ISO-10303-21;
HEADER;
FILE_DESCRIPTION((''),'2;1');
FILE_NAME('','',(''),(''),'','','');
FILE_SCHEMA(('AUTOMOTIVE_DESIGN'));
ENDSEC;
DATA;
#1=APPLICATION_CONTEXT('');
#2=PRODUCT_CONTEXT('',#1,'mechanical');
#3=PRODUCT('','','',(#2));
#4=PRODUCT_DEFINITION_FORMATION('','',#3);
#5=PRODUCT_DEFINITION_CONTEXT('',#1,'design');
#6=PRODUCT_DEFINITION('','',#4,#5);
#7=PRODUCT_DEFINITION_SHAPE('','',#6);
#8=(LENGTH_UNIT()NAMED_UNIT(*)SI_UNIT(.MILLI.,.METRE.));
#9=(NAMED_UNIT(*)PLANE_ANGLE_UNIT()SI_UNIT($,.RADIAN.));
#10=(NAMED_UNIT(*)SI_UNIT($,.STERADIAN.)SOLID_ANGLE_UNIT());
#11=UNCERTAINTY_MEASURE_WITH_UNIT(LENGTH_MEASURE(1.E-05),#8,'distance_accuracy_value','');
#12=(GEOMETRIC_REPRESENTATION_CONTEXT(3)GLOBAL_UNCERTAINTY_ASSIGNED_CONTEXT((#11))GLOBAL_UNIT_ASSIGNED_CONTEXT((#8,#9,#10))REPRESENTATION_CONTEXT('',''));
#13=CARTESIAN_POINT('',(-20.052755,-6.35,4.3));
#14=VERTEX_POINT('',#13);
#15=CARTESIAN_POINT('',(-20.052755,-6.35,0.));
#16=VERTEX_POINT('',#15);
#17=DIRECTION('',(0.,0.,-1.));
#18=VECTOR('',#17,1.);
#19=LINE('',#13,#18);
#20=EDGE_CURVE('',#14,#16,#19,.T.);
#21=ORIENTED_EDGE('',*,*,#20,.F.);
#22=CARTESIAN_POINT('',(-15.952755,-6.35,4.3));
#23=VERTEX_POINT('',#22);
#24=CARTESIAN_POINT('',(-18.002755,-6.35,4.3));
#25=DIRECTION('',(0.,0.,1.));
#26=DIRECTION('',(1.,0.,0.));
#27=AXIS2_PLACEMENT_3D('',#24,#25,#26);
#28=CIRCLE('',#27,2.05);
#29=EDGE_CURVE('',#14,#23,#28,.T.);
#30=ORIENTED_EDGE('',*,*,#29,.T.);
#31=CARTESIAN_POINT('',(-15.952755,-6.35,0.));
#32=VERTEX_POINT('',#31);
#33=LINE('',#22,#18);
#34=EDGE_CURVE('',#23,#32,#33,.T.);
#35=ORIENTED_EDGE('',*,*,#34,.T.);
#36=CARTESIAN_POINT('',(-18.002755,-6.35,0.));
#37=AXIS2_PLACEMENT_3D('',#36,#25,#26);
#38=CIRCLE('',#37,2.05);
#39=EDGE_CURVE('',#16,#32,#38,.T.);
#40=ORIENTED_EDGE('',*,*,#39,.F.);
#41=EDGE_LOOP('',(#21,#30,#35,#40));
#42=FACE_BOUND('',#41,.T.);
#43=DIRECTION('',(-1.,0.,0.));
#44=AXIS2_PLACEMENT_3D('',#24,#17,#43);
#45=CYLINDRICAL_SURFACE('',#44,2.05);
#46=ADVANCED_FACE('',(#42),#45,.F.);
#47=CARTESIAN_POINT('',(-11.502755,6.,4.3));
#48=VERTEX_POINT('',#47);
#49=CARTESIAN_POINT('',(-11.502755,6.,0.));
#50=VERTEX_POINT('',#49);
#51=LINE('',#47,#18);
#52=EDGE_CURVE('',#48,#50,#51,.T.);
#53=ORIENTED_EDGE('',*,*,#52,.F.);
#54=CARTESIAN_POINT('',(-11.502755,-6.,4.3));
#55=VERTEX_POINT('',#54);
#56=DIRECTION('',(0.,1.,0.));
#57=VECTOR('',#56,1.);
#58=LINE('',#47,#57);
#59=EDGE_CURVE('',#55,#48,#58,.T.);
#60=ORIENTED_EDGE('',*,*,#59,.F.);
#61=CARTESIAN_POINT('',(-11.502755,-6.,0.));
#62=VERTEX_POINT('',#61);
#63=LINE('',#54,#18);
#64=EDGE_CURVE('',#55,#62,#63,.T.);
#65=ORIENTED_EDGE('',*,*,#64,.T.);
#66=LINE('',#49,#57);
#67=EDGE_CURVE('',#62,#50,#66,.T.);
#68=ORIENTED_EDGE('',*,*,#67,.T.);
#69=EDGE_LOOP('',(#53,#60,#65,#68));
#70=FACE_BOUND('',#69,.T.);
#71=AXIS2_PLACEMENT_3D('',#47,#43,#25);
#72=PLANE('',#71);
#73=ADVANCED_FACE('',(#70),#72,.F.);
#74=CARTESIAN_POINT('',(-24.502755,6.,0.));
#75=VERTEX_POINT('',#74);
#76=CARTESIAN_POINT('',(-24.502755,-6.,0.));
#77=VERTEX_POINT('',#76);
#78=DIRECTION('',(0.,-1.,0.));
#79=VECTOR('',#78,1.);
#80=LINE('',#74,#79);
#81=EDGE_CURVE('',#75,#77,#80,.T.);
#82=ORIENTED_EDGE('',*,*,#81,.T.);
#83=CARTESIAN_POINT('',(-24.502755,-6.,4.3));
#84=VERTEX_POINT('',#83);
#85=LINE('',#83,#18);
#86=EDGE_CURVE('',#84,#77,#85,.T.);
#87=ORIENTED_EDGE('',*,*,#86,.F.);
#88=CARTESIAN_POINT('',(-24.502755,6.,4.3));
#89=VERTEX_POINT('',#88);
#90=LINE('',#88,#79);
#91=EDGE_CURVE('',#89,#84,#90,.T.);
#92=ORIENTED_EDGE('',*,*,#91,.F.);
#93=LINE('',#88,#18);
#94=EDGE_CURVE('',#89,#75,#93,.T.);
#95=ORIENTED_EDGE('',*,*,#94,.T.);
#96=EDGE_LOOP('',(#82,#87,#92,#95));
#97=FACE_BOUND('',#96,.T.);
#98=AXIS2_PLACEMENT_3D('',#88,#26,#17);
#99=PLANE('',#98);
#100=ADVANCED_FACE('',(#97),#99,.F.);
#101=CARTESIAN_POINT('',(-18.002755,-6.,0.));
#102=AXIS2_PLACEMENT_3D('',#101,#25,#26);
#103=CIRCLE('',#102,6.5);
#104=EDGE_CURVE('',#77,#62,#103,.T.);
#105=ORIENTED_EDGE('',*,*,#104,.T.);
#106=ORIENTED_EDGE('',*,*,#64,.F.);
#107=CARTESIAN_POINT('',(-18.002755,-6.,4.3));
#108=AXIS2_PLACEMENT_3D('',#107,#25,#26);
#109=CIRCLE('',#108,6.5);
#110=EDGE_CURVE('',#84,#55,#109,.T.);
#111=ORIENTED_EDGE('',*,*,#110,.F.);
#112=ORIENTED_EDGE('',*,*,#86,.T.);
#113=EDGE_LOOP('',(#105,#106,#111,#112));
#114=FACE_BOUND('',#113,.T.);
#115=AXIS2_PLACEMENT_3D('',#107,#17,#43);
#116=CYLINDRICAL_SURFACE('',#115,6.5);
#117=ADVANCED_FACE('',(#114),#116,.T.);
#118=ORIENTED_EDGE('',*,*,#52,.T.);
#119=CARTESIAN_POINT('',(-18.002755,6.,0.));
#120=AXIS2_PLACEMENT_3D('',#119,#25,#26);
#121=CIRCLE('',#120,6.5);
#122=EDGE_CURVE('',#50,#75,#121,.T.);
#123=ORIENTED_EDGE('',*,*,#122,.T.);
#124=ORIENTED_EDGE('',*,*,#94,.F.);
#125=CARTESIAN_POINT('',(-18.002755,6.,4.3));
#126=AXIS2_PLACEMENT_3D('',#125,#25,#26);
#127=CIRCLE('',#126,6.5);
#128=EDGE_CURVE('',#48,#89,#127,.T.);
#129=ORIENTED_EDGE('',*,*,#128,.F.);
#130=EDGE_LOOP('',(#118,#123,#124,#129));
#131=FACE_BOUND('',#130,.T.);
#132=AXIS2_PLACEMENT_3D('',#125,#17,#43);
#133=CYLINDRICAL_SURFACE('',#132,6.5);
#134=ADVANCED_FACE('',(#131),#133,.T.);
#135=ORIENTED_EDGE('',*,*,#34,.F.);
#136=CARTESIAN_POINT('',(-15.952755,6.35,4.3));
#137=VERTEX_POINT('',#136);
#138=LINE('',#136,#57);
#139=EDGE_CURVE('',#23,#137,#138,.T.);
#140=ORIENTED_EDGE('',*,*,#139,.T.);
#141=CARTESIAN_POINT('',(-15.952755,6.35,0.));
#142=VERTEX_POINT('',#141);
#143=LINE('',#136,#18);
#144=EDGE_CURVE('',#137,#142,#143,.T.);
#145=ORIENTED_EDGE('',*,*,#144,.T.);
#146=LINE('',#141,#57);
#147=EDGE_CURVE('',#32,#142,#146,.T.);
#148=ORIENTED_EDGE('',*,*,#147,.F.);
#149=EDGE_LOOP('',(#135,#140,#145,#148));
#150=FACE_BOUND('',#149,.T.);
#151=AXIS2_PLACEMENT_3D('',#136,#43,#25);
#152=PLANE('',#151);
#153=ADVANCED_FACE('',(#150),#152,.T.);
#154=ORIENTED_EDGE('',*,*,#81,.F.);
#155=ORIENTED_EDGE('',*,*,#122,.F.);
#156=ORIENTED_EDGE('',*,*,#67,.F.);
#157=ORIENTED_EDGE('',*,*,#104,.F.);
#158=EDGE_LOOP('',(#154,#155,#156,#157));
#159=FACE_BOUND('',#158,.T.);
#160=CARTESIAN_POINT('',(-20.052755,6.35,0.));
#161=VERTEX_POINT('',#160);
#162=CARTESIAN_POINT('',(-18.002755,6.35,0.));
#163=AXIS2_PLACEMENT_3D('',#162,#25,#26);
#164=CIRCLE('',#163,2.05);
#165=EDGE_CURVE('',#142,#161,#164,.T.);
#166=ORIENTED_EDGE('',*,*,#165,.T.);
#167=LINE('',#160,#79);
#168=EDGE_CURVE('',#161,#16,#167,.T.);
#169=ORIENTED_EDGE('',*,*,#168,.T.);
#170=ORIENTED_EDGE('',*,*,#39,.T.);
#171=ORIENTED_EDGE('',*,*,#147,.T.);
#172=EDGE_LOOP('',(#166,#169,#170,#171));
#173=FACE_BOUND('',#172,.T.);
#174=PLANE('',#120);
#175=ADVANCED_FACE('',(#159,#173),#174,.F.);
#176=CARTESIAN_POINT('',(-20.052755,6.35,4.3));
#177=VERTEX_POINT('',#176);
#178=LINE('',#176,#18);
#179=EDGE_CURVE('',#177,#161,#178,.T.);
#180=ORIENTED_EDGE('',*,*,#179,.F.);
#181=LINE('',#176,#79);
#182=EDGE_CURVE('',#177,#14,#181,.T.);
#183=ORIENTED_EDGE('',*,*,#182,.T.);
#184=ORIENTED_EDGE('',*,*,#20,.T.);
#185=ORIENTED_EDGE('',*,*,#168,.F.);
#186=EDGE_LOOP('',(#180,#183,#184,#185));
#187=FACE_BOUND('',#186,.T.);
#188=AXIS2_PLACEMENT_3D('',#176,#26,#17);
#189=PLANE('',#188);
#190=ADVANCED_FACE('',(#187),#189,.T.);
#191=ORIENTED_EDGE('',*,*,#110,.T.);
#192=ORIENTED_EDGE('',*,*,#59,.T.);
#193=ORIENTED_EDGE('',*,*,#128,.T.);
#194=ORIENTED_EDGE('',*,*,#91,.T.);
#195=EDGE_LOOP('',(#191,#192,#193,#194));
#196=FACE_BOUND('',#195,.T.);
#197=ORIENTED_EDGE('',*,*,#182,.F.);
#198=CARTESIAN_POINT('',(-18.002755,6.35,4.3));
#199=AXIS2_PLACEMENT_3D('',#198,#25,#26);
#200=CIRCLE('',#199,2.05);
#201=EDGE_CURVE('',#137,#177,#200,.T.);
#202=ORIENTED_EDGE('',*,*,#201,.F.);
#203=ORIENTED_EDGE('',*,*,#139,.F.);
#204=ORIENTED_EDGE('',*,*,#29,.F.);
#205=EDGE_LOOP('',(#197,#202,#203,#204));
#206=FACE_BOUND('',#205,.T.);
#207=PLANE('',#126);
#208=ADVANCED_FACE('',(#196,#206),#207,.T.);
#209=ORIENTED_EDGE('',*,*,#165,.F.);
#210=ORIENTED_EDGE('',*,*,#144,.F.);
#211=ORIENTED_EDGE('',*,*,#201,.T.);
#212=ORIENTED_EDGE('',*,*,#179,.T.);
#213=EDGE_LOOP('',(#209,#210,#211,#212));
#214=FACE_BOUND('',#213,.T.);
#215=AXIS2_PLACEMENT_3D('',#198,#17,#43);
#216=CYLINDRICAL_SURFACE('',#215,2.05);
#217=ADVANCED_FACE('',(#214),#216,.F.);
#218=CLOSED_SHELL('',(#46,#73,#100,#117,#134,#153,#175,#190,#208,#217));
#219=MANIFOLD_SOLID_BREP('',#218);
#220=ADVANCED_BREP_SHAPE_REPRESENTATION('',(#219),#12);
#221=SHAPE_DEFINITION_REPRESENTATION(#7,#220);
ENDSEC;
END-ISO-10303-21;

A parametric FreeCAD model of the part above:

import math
import FreeCAD as App
import Part
import Sketcher

doc = App.newDocument("Part")
params = doc.addObject("Spreadsheet::Sheet", "Params")
for row, (alias, value) in enumerate([
    ("sketch1_radius", "6.5 mm"),
    ("sketch1_height", "12 mm"),
    ("sketch1_radius2", "2.05 mm"),
    ("sketch1_height2", "12.7 mm"),
    ("pad1_length", "4.3 mm"),
], start=1):
    params.set(f"A{row}", alias)
    params.set(f"B{row}", "=" + value)
    params.setAlias(f"B{row}", alias)

body = doc.addObject("PartDesign::Body", "Body")

# Sketch on XY plane
sketch1 = body.newObject("Sketcher::SketchObject", "Sketch")
sketch1.AttachmentSupport = (doc.getObject("XY_Plane"), [""])
sketch1.MapMode = "FlatFace"
sketch1.addGeometry([
    Part.LineSegment(App.Vector(-11.5, -6, 0), App.Vector(-11.5, 6, 0)),  # 0
    Part.ArcOfCircle(Part.Circle(App.Vector(-18, 6, 0), App.Vector(0, 0, 1), 6.5), math.radians(0), math.radians(180)),  # 1
    Part.LineSegment(App.Vector(-24.5, 6, 0), App.Vector(-24.5, -6, 0)),  # 2
    Part.ArcOfCircle(Part.Circle(App.Vector(-18, -6, 0), App.Vector(0, 0, 1), 6.5), math.radians(180), math.radians(360)),  # 3
    Part.LineSegment(App.Vector(-16, 6.3, 0), App.Vector(-16, -6.3, 0)),  # 4
    Part.ArcOfCircle(Part.Circle(App.Vector(-18, -6.3, 0), App.Vector(0, 0, 1), 2), math.radians(180), math.radians(360)),  # 5
    Part.LineSegment(App.Vector(-20.1, -6.3, 0), App.Vector(-20.1, 6.3, 0)),  # 6
    Part.ArcOfCircle(Part.Circle(App.Vector(-18, 6.3, 0), App.Vector(0, 0, 1), 2), math.radians(0), math.radians(180)),  # 7
], False)
sketch1.addConstraint([
    Sketcher.Constraint("Tangent", 0, 2, 1, 1),
    Sketcher.Constraint("Tangent", 1, 2, 2, 1),
    Sketcher.Constraint("Tangent", 2, 2, 3, 1),
    Sketcher.Constraint("Tangent", 3, 2, 0, 1),
    Sketcher.Constraint("Tangent", 4, 2, 5, 2),
    Sketcher.Constraint("Tangent", 5, 1, 6, 1),
    Sketcher.Constraint("Tangent", 6, 2, 7, 2),
    Sketcher.Constraint("Tangent", 7, 1, 4, 1),
    Sketcher.Constraint("Vertical", 0),
    Sketcher.Constraint("Vertical", 2),
    Sketcher.Constraint("Vertical", 4),
    Sketcher.Constraint("Vertical", 6),
    Sketcher.Constraint("Vertical", 3, 3, 5, 3),
    Sketcher.Constraint("Radius", 1, 6.5),
    Sketcher.Constraint("DistanceY", 0, 1, 0, 2, 12.0),
    Sketcher.Constraint("Radius", 5, 2.05),
    Sketcher.Constraint("DistanceY", 4, 2, 4, 1, 12.7),
    Sketcher.Constraint("DistanceY", -1, 1, 1, 3, 6.0),
    Sketcher.Constraint("DistanceY", 5, 3, -1, 1, 6.35),
    Sketcher.Constraint("DistanceX", 1, 3, -1, 1, 18.002755),
])
sketch1.setExpression("Constraints[13]", "Params.sketch1_radius")
sketch1.setExpression("Constraints[14]", "Params.sketch1_height")
sketch1.setExpression("Constraints[15]", "Params.sketch1_radius2")
sketch1.setExpression("Constraints[16]", "Params.sketch1_height2")
pad1 = body.newObject("PartDesign::Pad", "Pad")
pad1.Profile = sketch1
pad1.setExpression("Length", "Params.pad1_length")

doc.recompute()
